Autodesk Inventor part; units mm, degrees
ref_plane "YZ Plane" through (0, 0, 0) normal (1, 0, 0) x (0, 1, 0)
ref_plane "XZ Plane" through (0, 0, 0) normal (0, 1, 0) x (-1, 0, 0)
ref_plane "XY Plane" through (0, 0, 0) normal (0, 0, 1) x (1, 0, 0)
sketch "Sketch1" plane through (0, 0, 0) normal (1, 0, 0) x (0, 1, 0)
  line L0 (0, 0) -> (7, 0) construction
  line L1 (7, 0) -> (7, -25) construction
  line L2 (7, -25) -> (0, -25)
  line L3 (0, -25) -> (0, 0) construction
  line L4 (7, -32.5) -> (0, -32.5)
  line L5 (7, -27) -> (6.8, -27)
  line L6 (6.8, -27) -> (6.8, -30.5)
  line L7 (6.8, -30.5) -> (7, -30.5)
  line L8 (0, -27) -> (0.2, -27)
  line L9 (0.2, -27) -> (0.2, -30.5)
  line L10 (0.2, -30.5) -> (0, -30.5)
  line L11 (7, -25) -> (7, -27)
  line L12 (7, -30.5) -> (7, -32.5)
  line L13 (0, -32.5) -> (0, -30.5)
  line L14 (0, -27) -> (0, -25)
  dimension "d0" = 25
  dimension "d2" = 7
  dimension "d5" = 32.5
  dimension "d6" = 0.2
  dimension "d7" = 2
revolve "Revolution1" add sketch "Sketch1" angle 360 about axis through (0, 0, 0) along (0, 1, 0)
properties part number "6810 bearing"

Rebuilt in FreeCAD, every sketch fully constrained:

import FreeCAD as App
import Part
import Sketcher
Q = App.Units.Quantity

doc = App.newDocument("Part")
body = doc.addObject("PartDesign::Body", "Body")

# Sketch on YZ plane
sketch1 = body.newObject("Sketcher::SketchObject", "Sketch")
sketch1.AttachmentSupport = (doc.getObject("YZ_Plane"), [""])
sketch1.MapMode = "FlatFace"
sketch1.addGeometry([
    Part.LineSegment(App.Vector(7, -27, 0), App.Vector(7, -25, 0)),  # 0
    Part.LineSegment(App.Vector(7, -25, 0), App.Vector(0, -25, 0)),  # 1
    Part.LineSegment(App.Vector(0, -25, 0), App.Vector(0, -27, 0)),  # 2
    Part.LineSegment(App.Vector(0, -27, 0), App.Vector(0.2, -27, 0)),  # 3
    Part.LineSegment(App.Vector(0.2, -27, 0), App.Vector(0.2, -30.5, 0)),  # 4
    Part.LineSegment(App.Vector(0.2, -30.5, 0), App.Vector(0, -30.5, 0)),  # 5
    Part.LineSegment(App.Vector(0, -30.5, 0), App.Vector(0, -32.5, 0)),  # 6
    Part.LineSegment(App.Vector(0, -32.5, 0), App.Vector(7, -32.5, 0)),  # 7
    Part.LineSegment(App.Vector(7, -32.5, 0), App.Vector(7, -30.5, 0)),  # 8
    Part.LineSegment(App.Vector(7, -30.5, 0), App.Vector(6.8, -30.5, 0)),  # 9
    Part.LineSegment(App.Vector(6.8, -30.5, 0), App.Vector(6.8, -27, 0)),  # 10
    Part.LineSegment(App.Vector(6.8, -27, 0), App.Vector(7, -27, 0)),  # 11
], False)
sketch1.addConstraint([
    Sketcher.Constraint("Coincident", 0, 2, 1, 1),
    Sketcher.Constraint("Coincident", 1, 2, 2, 1),
    Sketcher.Constraint("Coincident", 2, 2, 3, 1),
    Sketcher.Constraint("Coincident", 3, 2, 4, 1),
    Sketcher.Constraint("Coincident", 4, 2, 5, 1),
    Sketcher.Constraint("Coincident", 5, 2, 6, 1),
    Sketcher.Constraint("Coincident", 6, 2, 7, 1),
    Sketcher.Constraint("Coincident", 7, 2, 8, 1),
    Sketcher.Constraint("Coincident", 8, 2, 9, 1),
    Sketcher.Constraint("Coincident", 9, 2, 10, 1),
    Sketcher.Constraint("Coincident", 10, 2, 11, 1),
    Sketcher.Constraint("Coincident", 11, 2, 0, 1),
    Sketcher.Constraint("Vertical", 0),
    Sketcher.Constraint("Horizontal", 1),
    Sketcher.Constraint("Vertical", 2),
    Sketcher.Constraint("Horizontal", 3),
    Sketcher.Constraint("Vertical", 4),
    Sketcher.Constraint("Horizontal", 5),
    Sketcher.Constraint("Vertical", 6),
    Sketcher.Constraint("Horizontal", 7),
    Sketcher.Constraint("Vertical", 8),
    Sketcher.Constraint("Horizontal", 9),
    Sketcher.Constraint("Vertical", 10),
    Sketcher.Constraint("Horizontal", 11),
    Sketcher.Constraint("PointOnObject", 1, 2, -2),
    Sketcher.Constraint("PointOnObject", 5, 2, -2),
    Sketcher.Constraint("Horizontal", 5, 2, 8, 2),
    Sketcher.Constraint("Horizontal", 3, 2, 10, 2),
    Sketcher.Constraint("Vertical", 0, 2, 7, 2),
    Sketcher.Constraint("Equal", 5, 9),
    Sketcher.Constraint("Equal", 2, 6),
    Sketcher.Constraint("DistanceX", 1, 2, 1, 1, Q("7 mm")),
    Sketcher.Constraint("DistanceY", 0, 1, 0, 2, Q("2 mm")),
    Sketcher.Constraint("DistanceX", 3, 1, 3, 2, Q("0.2 mm")),
    Sketcher.Constraint("DistanceY", 0, 2, -1, 1, Q("25 mm")),
    Sketcher.Constraint("DistanceY", 6, 2, -1, 1, Q("32.5 mm")),
])
revolution = body.newObject("PartDesign::Revolution", "Revolution")
revolution.Profile = sketch1
revolution.ReferenceAxis = (sketch1, ["H_Axis"])
revolution.Angle = 360

doc.recompute()
